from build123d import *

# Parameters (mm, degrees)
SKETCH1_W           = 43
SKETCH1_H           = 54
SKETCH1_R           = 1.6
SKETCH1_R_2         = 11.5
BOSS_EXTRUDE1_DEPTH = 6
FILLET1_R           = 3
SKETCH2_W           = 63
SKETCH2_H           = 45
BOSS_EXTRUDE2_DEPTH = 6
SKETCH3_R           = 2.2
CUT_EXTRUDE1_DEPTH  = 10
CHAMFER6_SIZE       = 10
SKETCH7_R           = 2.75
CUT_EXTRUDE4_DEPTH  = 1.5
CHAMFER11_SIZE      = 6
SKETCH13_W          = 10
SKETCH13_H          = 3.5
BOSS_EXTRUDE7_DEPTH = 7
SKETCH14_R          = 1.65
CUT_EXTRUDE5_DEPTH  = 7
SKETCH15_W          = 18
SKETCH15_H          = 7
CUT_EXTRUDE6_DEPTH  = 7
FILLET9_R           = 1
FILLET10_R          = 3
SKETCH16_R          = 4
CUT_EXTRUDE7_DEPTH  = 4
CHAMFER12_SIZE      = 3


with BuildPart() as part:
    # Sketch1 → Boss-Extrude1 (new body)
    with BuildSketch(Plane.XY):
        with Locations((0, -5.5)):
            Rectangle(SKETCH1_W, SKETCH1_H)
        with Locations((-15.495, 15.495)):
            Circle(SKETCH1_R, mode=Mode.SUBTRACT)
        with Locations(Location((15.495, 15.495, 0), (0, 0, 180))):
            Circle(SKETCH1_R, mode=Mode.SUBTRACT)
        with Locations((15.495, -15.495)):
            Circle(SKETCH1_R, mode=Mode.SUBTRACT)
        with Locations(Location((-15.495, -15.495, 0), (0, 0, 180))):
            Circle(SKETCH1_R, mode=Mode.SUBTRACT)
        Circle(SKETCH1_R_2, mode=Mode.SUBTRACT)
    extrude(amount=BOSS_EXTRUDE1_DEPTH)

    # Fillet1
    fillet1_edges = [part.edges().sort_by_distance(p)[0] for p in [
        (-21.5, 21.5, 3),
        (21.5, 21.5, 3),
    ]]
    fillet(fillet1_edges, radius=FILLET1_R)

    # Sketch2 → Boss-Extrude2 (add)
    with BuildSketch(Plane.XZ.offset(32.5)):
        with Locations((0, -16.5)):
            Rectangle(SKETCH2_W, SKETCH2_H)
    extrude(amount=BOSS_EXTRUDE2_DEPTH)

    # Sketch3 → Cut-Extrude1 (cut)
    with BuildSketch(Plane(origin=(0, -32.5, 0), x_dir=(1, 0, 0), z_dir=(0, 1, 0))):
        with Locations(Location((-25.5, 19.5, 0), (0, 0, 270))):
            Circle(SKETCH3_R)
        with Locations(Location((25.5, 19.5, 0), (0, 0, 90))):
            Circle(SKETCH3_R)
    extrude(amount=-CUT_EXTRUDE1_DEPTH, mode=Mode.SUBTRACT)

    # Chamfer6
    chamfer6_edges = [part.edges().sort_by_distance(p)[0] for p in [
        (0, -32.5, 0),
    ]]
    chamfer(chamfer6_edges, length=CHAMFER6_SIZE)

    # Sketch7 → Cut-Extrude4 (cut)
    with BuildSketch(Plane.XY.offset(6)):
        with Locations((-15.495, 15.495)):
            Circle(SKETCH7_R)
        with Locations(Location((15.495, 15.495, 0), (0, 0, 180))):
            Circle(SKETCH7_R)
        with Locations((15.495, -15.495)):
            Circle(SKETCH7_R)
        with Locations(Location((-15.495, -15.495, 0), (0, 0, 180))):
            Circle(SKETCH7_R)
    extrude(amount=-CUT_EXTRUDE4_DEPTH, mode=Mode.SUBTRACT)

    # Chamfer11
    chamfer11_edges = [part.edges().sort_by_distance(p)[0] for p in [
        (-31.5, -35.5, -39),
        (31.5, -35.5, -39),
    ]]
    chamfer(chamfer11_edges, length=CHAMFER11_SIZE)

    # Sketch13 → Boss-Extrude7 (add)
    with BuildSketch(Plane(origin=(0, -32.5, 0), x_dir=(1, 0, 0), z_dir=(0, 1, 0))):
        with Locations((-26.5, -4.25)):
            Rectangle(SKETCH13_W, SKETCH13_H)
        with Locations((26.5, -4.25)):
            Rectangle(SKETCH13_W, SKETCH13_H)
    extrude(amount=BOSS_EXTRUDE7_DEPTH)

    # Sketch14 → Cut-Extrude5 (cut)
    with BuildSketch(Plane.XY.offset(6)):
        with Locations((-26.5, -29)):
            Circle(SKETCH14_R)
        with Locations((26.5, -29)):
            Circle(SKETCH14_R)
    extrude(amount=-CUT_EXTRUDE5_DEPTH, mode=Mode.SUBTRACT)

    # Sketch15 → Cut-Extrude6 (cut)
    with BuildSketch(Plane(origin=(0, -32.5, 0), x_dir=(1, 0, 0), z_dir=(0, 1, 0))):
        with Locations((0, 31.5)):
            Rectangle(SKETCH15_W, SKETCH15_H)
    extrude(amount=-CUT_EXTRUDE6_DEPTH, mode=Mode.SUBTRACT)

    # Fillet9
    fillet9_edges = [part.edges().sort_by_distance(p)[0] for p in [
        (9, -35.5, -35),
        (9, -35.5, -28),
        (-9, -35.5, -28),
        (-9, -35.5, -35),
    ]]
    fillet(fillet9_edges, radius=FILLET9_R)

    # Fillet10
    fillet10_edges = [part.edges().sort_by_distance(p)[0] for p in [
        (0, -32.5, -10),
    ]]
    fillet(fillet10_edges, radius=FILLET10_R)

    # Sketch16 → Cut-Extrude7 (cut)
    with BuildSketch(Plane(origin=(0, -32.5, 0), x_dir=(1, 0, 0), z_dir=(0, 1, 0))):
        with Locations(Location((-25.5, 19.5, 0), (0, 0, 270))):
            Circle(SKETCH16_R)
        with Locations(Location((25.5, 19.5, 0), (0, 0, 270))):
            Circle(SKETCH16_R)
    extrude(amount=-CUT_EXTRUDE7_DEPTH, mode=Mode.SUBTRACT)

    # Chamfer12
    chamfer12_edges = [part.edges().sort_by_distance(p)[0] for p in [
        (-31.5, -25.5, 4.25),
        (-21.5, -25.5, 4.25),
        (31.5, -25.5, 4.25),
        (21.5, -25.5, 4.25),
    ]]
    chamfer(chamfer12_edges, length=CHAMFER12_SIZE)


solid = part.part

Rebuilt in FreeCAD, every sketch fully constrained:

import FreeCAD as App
import Part
import Sketcher

V = App.Vector


def edges_at(feature, points):
    """Names of the edges that pass closest to the given points."""
    edges = feature.Shape.Edges
    near = lambda p: min(range(len(edges)), key=lambda i: edges[i].distToShape(Part.Vertex(*p))[0])
    return sorted({f"Edge{near(p) + 1}" for p in points})

doc = App.newDocument("Part")
body = doc.addObject("PartDesign::Body", "Body")

# Sketch on XY plane
sketch1 = body.newObject("Sketcher::SketchObject", "Sketch")
sketch1.AttachmentSupport = (doc.getObject("XY_Plane"), [""])
sketch1.MapMode = "FlatFace"
sketch1.addGeometry([
    Part.LineSegment(V(-21.5, 21.5, 0), V(-21.5, -32.5, 0)),  # 0
    Part.LineSegment(V(-21.5, -32.5, 0), V(21.5, -32.5, 0)),  # 1
    Part.LineSegment(V(21.5, -32.5, 0), V(21.5, 21.5, 0)),  # 2
    Part.LineSegment(V(21.5, 21.5, 0), V(-21.5, 21.5, 0)),  # 3
    Part.Circle(V(-15.5, -15.5, 0), V(0, 0, 1), 1.6),  # 4
    Part.Circle(V(15.5, -15.5, 0), V(0, 0, 1), 1.6),  # 5
    Part.Circle(V(-15.5, 15.5, 0), V(0, 0, 1), 1.6),  # 6
    Part.Circle(V(0, 0, 0), V(0, 0, 1), 11.5),  # 7
    Part.Circle(V(15.5, 15.5, 0), V(0, 0, 1), 1.6),  # 8
], False)
sketch1.addConstraint([
    Sketcher.Constraint("Coincident", 0, 2, 1, 1),
    Sketcher.Constraint("Coincident", 1, 2, 2, 1),
    Sketcher.Constraint("Coincident", 2, 2, 3, 1),
    Sketcher.Constraint("Coincident", 3, 2, 0, 1),
    Sketcher.Constraint("Vertical", 0),
    Sketcher.Constraint("Horizontal", 1),
    Sketcher.Constraint("Vertical", 2),
    Sketcher.Constraint("Horizontal", 3),
    Sketcher.Constraint("Coincident", 7, 3, -1, 1),
    Sketcher.Constraint("Equal", 4, 5),
    Sketcher.Constraint("Equal", 5, 6),
    Sketcher.Constraint("Equal", 6, 8),
    Sketcher.Constraint("Symmetric", 5, 3, 6, 3, -1, 1),
    Sketcher.Constraint("Symmetric", 4, 3, 8, 3, -1, 1),
    Sketcher.Constraint("Symmetric", 4, 3, 5, 3, -2),
    Sketcher.Constraint("Diameter", 7, 23.0),
    Sketcher.Constraint("Diameter", 4, 3.2),
    Sketcher.Constraint("DistanceX", 1, 1, 1, 2, 43.0),
    Sketcher.Constraint("DistanceY", 0, 2, 0, 1, 54.0),
    Sketcher.Constraint("DistanceX", 0, 2, -1, 1, 21.5),
    Sketcher.Constraint("DistanceY", 0, 2, -1, 1, 32.5),
    Sketcher.Constraint("DistanceX", 4, 3, 5, 3, 30.99),
    Sketcher.Constraint("DistanceY", 4, 3, 6, 3, 30.99),
])
pad1 = body.newObject("PartDesign::Pad", "Pad")
pad1.Profile = sketch1
pad1.Length = 6
doc.recompute()

fillet = body.newObject("PartDesign::Fillet", "Fillet")
fillet.Base = (pad1, edges_at(pad1, [(-21.5, 21.5, 3), (21.5, 21.5, 3)]))
fillet.Radius = 3

# Sketch on XZ plane
sketch2 = body.newObject("Sketcher::SketchObject", "Sketch001")
sketch2.AttachmentSupport = (doc.getObject("XZ_Plane"), [""])
sketch2.MapMode = "FlatFace"
sketch2.AttachmentOffset = App.Placement(V(0, 0, 32.5), App.Rotation())
sketch2.addGeometry([
    Part.LineSegment(V(-32, 6, 0), V(-32, -39, 0)),
    Part.LineSegment(V(-32, -39, 0), V(32, -39, 0)),
    Part.LineSegment(V(32, -39, 0), V(32, 6, 0)),
    Part.LineSegment(V(32, 6, 0), V(-32, 6, 0)),
], False)
sketch2.addConstraint([
    Sketcher.Constraint("Coincident", 0, 2, 1, 1),
    Sketcher.Constraint("Coincident", 1, 2, 2, 1),
    Sketcher.Constraint("Coincident", 2, 2, 3, 1),
    Sketcher.Constraint("Coincident", 3, 2, 0, 1),
    Sketcher.Constraint("Vertical", 0),
    Sketcher.Constraint("Horizontal", 1),
    Sketcher.Constraint("Vertical", 2),
    Sketcher.Constraint("Horizontal", 3),
    Sketcher.Constraint("DistanceX", 1, 1, 1, 2, 63.0),
    Sketcher.Constraint("DistanceY", 0, 2, 0, 1, 45.0),
    Sketcher.Constraint("DistanceY", 0, 2, -1, 1, 39.0),
    Sketcher.Constraint("DistanceX", 0, 2, -1, 1, 31.5),
])
pad2 = body.newObject("PartDesign::Pad", "Pad001")
pad2.Profile = sketch2
pad2.Length = 6

# Sketch on XZ plane
sketch3 = body.newObject("Sketcher::SketchObject", "Sketch002")
sketch3.AttachmentSupport = (doc.getObject("XZ_Plane"), [""])
sketch3.MapMode = "FlatFace"
sketch3.AttachmentOffset = App.Placement(V(0, 0, 32.5), App.Rotation())
sketch3.addGeometry([
    Part.Circle(V(-25.5, -19.5, 0), V(0, 0, 1), 2.2),
    Part.Circle(V(25.5, -19.5, 0), V(0, 0, 1), 2.2),
], False)
sketch3.addConstraint([
    Sketcher.Constraint("Equal", 0, 1),
    Sketcher.Constraint("Symmetric", 0, 3, 1, 3, -2),
    Sketcher.Constraint("Diameter", 0, 4.4),
    Sketcher.Constraint("DistanceX", 0, 3, 1, 3, 51.0),
    Sketcher.Constraint("DistanceY", 0, 3, -1, 1, 19.5),
])
pocket1 = body.newObject("PartDesign::Pocket", "Pocket")
pocket1.Profile = sketch3
pocket1.Length = 10
pocket1.Reversed = True
doc.recompute()

chamfer = body.newObject("PartDesign::Chamfer", "Chamfer")
chamfer.Base = (pocket1, edges_at(pocket1, [(0, -32.5, 0)]))
chamfer.Size = 10

# Sketch on XY plane
sketch4 = body.newObject("Sketcher::SketchObject", "Sketch003")
sketch4.AttachmentSupport = (doc.getObject("XY_Plane"), [""])
sketch4.MapMode = "FlatFace"
sketch4.AttachmentOffset = App.Placement(V(0, 0, 6), App.Rotation())
sketch4.addGeometry([
    Part.Circle(V(-15.5, 15.5, 0), V(0, 0, 1), 2.8),
    Part.Circle(V(15.5, 15.5, 0), V(0, 0, 1), 2.8),
    Part.Circle(V(15.5, -15.5, 0), V(0, 0, 1), 2.8),
    Part.Circle(V(-15.5, -15.5, 0), V(0, 0, 1), 2.8),
], False)
sketch4.addConstraint([
    Sketcher.Constraint("Equal", 0, 1),
    Sketcher.Constraint("Equal", 1, 2),
    Sketcher.Constraint("Equal", 2, 3),
    Sketcher.Constraint("Symmetric", 0, 3, 2, 3, -1, 1),
    Sketcher.Constraint("Symmetric", 1, 3, 3, 3, -1, 1),
    Sketcher.Constraint("Symmetric", 0, 3, 1, 3, -2),
    Sketcher.Constraint("Diameter", 0, 5.5),
    Sketcher.Constraint("DistanceX", 0, 3, 1, 3, 30.99),
    Sketcher.Constraint("DistanceY", 2, 3, 1, 3, 30.99),
])
pocket2 = body.newObject("PartDesign::Pocket", "Pocket001")
pocket2.Profile = sketch4
pocket2.Length = 1.5
doc.recompute()

chamfer2 = body.newObject("PartDesign::Chamfer", "Chamfer001")
chamfer2.Base = (pocket2, edges_at(pocket2, [(-31.5, -35.5, -39), (31.5, -35.5, -39)]))
chamfer2.Size = 6

# Sketch on XZ plane
sketch5 = body.newObject("Sketcher::SketchObject", "Sketch004")
sketch5.AttachmentSupport = (doc.getObject("XZ_Plane"), [""])
sketch5.MapMode = "FlatFace"
sketch5.AttachmentOffset = App.Placement(V(0, 0, 32.5), App.Rotation())
sketch5.addGeometry([
    Part.LineSegment(V(-31.5, 2.5, 0), V(-31.5, 6, 0)),  # 0
    Part.LineSegment(V(-31.5, 6, 0), V(-21.5, 6, 0)),  # 1
    Part.LineSegment(V(-21.5, 6, 0), V(-21.5, 2.5, 0)),  # 2
    Part.LineSegment(V(-21.5, 2.5, 0), V(-31.5, 2.5, 0)),  # 3
    Part.LineSegment(V(21.5, 2.5, 0), V(21.5, 6, 0)),  # 4
    Part.LineSegment(V(21.5, 6, 0), V(31.5, 6, 0)),  # 5
    Part.LineSegment(V(31.5, 6, 0), V(31.5, 2.5, 0)),  # 6
    Part.LineSegment(V(31.5, 2.5, 0), V(21.5, 2.5, 0)),  # 7
], False)
sketch5.addConstraint([
    Sketcher.Constraint("Coincident", 0, 2, 1, 1),
    Sketcher.Constraint("Coincident", 1, 2, 2, 1),
    Sketcher.Constraint("Coincident", 2, 2, 3, 1),
    Sketcher.Constraint("Coincident", 3, 2, 0, 1),
    Sketcher.Constraint("Coincident", 4, 2, 5, 1),
    Sketcher.Constraint("Coincident", 5, 2, 6, 1),
    Sketcher.Constraint("Coincident", 6, 2, 7, 1),
    Sketcher.Constraint("Coincident", 7, 2, 4, 1),
    Sketcher.Constraint("Vertical", 0),
    Sketcher.Constraint("Horizontal", 1),
    Sketcher.Constraint("Vertical", 2),
    Sketcher.Constraint("Horizontal", 3),
    Sketcher.Constraint("Vertical", 4),
    Sketcher.Constraint("Horizontal", 5),
    Sketcher.Constraint("Vertical", 6),
    Sketcher.Constraint("Horizontal", 7),
    Sketcher.Constraint("Symmetric", 1, 2, 4, 2, -2),
    Sketcher.Constraint("Symmetric", 3, 2, 6, 2, -2),
    Sketcher.Constraint("DistanceX", 1, 1, 1, 2, 10.0),
    Sketcher.Constraint("DistanceY", 0, 1, 0, 2, 3.5),
    Sketcher.Constraint("DistanceY", -1, 1, 0, 2, 6.0),
    Sketcher.Constraint("DistanceX", 1, 2, 4, 2, 43.0),
])
pad3 = body.newObject("PartDesign::Pad", "Pad002")
pad3.Profile = sketch5
pad3.Length = 7
pad3.Reversed = True

# Sketch on XY plane
sketch6 = body.newObject("Sketcher::SketchObject", "Sketch005")
sketch6.AttachmentSupport = (doc.getObject("XY_Plane"), [""])
sketch6.MapMode = "FlatFace"
sketch6.AttachmentOffset = App.Placement(V(0, 0, 6), App.Rotation())
sketch6.addGeometry([
    Part.Circle(V(-26.5, -29, 0), V(0, 0, 1), 1.6),
    Part.Circle(V(26.5, -29, 0), V(0, 0, 1), 1.6),
], False)
sketch6.addConstraint([
    Sketcher.Constraint("Equal", 0, 1),
    Sketcher.Constraint("Symmetric", 0, 3, 1, 3, -2),
    Sketcher.Constraint("Diameter", 0, 3.3),
    Sketcher.Constraint("DistanceY", 0, 3, -1, 1, 29.0),
    Sketcher.Constraint("DistanceX", 0, 3, 1, 3, 53.0),
])
pocket3 = body.newObject("PartDesign::Pocket", "Pocket002")
pocket3.Profile = sketch6
pocket3.Length = 7

# Sketch on XZ plane
sketch7 = body.newObject("Sketcher::SketchObject", "Sketch006")
sketch7.AttachmentSupport = (doc.getObject("XZ_Plane"), [""])
sketch7.MapMode = "FlatFace"
sketch7.AttachmentOffset = App.Placement(V(0, 0, 32.5), App.Rotation())
sketch7.addGeometry([
    Part.LineSegment(V(-9, -35, 0), V(-9, -28, 0)),
    Part.LineSegment(V(-9, -28, 0), V(9, -28, 0)),
    Part.LineSegment(V(9, -28, 0), V(9, -35, 0)),
    Part.LineSegment(V(9, -35, 0), V(-9, -35, 0)),
], False)
sketch7.addConstraint([
    Sketcher.Constraint("Coincident", 0, 2, 1, 1),
    Sketcher.Constraint("Coincident", 1, 2, 2, 1),
    Sketcher.Constraint("Coincident", 2, 2, 3, 1),
    Sketcher.Constraint("Coincident", 3, 2, 0, 1),
    Sketcher.Constraint("Vertical", 0),
    Sketcher.Constraint("Horizontal", 1),
    Sketcher.Constraint("Vertical", 2),
    Sketcher.Constraint("Horizontal", 3),
    Sketcher.Constraint("DistanceX", 1, 1, 1, 2, 18.0),
    Sketcher.Constraint("DistanceY", 0, 1, 0, 2, 7.0),
    Sketcher.Constraint("DistanceX", 0, 2, -1, 1, 9.0),
    Sketcher.Constraint("DistanceY", 0, 2, -1, 1, 28.0),
])
pocket4 = body.newObject("PartDesign::Pocket", "Pocket003")
pocket4.Profile = sketch7
pocket4.Length = 7
pocket4.Reversed = True
doc.recompute()

fillet2 = body.newObject("PartDesign::Fillet", "Fillet001")
fillet2.Base = (pocket4, edges_at(pocket4, [
    (9, -35.5, -35),
    (9, -35.5, -28),
    (-9, -35.5, -28),
    (-9, -35.5, -35),
]))
fillet2.Radius = 1
doc.recompute()

fillet3 = body.newObject("PartDesign::Fillet", "Fillet002")
fillet3.Base = (fillet2, edges_at(fillet2, [(0, -32.5, -10)]))
fillet3.Radius = 3

# Sketch on XZ plane
sketch8 = body.newObject("Sketcher::SketchObject", "Sketch007")
sketch8.AttachmentSupport = (doc.getObject("XZ_Plane"), [""])
sketch8.MapMode = "FlatFace"
sketch8.AttachmentOffset = App.Placement(V(0, 0, 32.5), App.Rotation())
sketch8.addGeometry([
    Part.Circle(V(-25.5, -19.5, 0), V(0, 0, 1), 4),
    Part.Circle(V(25.5, -19.5, 0), V(0, 0, 1), 4),
], False)
sketch8.addConstraint([
    Sketcher.Constraint("Equal", 0, 1),
    Sketcher.Constraint("Symmetric", 0, 3, 1, 3, -2),
    Sketcher.Constraint("Diameter", 0, 8.0),
    Sketcher.Constraint("DistanceX", 0, 3, 1, 3, 51.0),
    Sketcher.Constraint("DistanceY", 0, 3, -1, 1, 19.5),
])
pocket5 = body.newObject("PartDesign::Pocket", "Pocket004")
pocket5.Profile = sketch8
pocket5.Length = 4
pocket5.Reversed = True
doc.recompute()

chamfer3 = body.newObject("PartDesign::Chamfer", "Chamfer002")
chamfer3.Base = (pocket5, edges_at(pocket5, [
    (-31.5, -25.5, 4.25),
    (-21.5, -25.5, 4.25),
    (31.5, -25.5, 4.25),
    (21.5, -25.5, 4.25),
]))
chamfer3.Size = 3

doc.recompute()
